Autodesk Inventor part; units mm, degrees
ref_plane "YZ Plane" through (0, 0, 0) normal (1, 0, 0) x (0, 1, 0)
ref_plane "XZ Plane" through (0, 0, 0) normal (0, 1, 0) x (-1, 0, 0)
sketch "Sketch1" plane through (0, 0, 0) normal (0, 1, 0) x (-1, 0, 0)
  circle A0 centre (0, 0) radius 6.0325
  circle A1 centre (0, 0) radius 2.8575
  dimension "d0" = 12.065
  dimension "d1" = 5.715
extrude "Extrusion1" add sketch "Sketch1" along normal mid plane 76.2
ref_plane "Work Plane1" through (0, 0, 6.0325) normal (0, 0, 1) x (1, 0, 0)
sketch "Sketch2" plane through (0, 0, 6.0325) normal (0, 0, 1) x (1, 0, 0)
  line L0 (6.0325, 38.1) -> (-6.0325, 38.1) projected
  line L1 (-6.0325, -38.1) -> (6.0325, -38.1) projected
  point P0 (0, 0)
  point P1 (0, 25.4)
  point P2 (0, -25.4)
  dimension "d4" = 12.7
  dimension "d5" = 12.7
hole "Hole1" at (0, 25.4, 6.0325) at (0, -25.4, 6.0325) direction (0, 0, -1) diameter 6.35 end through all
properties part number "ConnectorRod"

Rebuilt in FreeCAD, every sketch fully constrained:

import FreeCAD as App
import Part
import Sketcher

V = App.Vector
Q = App.Units.Quantity

doc = App.newDocument("Part")
body = doc.addObject("PartDesign::Body", "Body")

sketch1 = body.newObject("Sketcher::SketchObject", "Sketch")
sketch1.AttachmentSupport = (doc.getObject("XZ_Plane"), [""])
sketch1.MapMode = "FlatFace"
sketch1.addGeometry([
    Part.Circle(V(0, 0, 0), V(0, 0, 1), 6.0325),
    Part.Circle(V(0, 0, 0), V(0, 0, 1), 2.8575),
], False)
sketch1.addConstraint([
    Sketcher.Constraint("Coincident", 0, 3, -1, 1),
    Sketcher.Constraint("Coincident", 1, 3, -1, 1),
    Sketcher.Constraint("Diameter", 0, Q("0.475 in")),
    Sketcher.Constraint("Diameter", 1, Q("0.225 in")),
])
pad1 = body.newObject("PartDesign::Pad", "Pad")
pad1.Profile = sketch1
pad1.Length = Q("3 in")
pad1.Midplane = True

sketch2 = body.newObject("Sketcher::SketchObject", "Sketch001")
sketch2.AttachmentSupport = (doc.getObject("XY_Plane"), [""])
sketch2.MapMode = "FlatFace"
sketch2.AttachmentOffset = App.Placement(V(0, 0, 0.2375 * 25.4), App.Rotation())
sketch2.addGeometry([
    Part.Circle(V(0, 25.4, 0), V(0, 0, 1), 3.175),
    Part.Circle(V(0, -25.4, 0), V(0, 0, 1), 3.175),
], False)
sketch2.addConstraint([
    Sketcher.Constraint("Equal", 0, 1),
    Sketcher.Constraint("Symmetric", 0, 3, 1, 3, -1, 1),
    Sketcher.Constraint("PointOnObject", 0, 3, -2),
    Sketcher.Constraint("Diameter", 0, Q("0.25 in")),
    Sketcher.Constraint("DistanceY", -1, 1, 0, 3, Q("1 in")),
])
doc.recompute()
hole = body.newObject("PartDesign::Hole", "Hole")
hole.Profile = sketch2
hole.ThreadType = "None"
hole.Diameter = Q("0.25 in")
hole.DepthType = "ThroughAll"

doc.recompute()
